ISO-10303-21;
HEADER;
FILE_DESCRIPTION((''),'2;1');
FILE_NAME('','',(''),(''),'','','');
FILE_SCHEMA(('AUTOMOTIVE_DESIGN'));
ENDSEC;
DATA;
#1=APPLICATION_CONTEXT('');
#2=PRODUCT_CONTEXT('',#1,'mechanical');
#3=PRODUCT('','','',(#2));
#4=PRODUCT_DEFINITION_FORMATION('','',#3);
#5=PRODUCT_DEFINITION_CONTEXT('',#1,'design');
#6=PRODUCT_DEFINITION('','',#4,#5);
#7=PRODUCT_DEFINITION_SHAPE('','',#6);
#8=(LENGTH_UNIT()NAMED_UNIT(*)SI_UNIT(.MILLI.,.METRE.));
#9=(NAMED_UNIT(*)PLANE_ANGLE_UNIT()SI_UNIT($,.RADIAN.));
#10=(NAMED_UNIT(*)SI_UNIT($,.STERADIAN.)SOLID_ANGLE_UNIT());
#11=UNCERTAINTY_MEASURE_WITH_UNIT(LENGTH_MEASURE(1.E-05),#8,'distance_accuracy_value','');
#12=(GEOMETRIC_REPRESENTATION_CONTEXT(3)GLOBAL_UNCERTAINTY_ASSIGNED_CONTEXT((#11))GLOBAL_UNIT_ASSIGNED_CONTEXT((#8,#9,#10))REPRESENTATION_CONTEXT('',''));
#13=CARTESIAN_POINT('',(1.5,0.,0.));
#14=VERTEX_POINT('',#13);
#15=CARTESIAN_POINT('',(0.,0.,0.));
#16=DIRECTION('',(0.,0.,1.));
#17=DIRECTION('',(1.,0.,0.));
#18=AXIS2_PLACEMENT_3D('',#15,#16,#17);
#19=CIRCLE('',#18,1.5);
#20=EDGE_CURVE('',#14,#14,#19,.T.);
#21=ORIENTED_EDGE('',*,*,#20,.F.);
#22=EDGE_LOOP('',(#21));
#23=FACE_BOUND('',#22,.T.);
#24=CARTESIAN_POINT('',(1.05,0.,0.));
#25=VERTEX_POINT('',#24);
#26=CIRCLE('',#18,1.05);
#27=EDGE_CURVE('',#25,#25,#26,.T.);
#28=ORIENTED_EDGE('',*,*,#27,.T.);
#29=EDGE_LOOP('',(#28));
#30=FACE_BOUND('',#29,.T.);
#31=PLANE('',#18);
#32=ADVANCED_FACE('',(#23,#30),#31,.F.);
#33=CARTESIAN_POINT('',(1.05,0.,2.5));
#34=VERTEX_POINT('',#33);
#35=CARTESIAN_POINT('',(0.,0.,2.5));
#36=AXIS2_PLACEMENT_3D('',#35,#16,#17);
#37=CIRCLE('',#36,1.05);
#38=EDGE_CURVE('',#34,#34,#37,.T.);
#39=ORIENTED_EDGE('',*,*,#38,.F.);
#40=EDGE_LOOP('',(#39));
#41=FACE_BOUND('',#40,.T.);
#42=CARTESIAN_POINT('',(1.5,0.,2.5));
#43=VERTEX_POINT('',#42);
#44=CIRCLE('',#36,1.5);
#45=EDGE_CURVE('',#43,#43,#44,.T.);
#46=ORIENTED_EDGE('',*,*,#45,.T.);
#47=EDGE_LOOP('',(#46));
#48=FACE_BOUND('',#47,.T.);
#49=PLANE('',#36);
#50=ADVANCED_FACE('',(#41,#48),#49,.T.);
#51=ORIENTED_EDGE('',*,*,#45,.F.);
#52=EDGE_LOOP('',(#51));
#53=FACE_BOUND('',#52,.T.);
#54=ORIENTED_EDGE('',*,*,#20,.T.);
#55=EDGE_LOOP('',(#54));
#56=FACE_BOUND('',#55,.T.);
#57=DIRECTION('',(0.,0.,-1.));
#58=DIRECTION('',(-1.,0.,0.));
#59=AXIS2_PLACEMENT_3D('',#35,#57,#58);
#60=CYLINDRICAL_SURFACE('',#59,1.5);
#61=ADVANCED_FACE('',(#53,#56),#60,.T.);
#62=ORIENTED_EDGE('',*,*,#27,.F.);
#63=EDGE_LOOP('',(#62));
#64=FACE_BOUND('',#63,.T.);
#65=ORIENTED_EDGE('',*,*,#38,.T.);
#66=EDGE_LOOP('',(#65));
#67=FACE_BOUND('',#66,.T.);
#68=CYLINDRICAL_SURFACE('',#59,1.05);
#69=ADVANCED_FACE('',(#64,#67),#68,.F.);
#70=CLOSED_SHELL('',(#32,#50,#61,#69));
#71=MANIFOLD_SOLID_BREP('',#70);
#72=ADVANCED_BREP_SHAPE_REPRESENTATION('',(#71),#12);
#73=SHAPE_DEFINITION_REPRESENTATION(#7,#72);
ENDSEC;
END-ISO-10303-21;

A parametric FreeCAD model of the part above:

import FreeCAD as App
import Part
import Sketcher
Q = App.Units.Quantity

doc = App.newDocument("Part")
params = doc.addObject("Spreadsheet::Sheet", "Params")
for row, (alias, value) in enumerate([
    ("sketch1_diameter", "3 mm"),
    ("sketch1_diameter2", "2.1 mm"),
    ("pad1_length", "2.5 mm"),
], start=1):
    params.set(f"A{row}", alias)
    params.set(f"B{row}", "=" + value)
    params.setAlias(f"B{row}", alias)

body = doc.addObject("PartDesign::Body", "Body")

sketch1 = body.newObject("Sketcher::SketchObject", "Sketch")
sketch1.AttachmentSupport = (doc.getObject("XY_Plane"), [""])
sketch1.MapMode = "FlatFace"
sketch1.addGeometry(Part.Circle(App.Vector(0, 0, 0), App.Vector(0, 0, 1), 1.5), False)
sketch1.addGeometry(Part.Circle(App.Vector(0, 0, 0), App.Vector(0, 0, 1), 1.05), False)
sketch1.addConstraint(Sketcher.Constraint("Coincident", 0, 3, -1, 1))
sketch1.addConstraint(Sketcher.Constraint("Coincident", 1, 3, -1, 1))
sketch1.addConstraint(Sketcher.Constraint("Diameter", 0, Q("3 mm")))
sketch1.addConstraint(Sketcher.Constraint("Diameter", 1, Q("2.1 mm")))
sketch1.setExpression("Constraints[2]", "Params.sketch1_diameter")
sketch1.setExpression("Constraints[3]", "Params.sketch1_diameter2")
pad1 = body.newObject("PartDesign::Pad", "Pad")
pad1.Profile = sketch1
pad1.setExpression("Length", "Params.pad1_length")

doc.recompute()
